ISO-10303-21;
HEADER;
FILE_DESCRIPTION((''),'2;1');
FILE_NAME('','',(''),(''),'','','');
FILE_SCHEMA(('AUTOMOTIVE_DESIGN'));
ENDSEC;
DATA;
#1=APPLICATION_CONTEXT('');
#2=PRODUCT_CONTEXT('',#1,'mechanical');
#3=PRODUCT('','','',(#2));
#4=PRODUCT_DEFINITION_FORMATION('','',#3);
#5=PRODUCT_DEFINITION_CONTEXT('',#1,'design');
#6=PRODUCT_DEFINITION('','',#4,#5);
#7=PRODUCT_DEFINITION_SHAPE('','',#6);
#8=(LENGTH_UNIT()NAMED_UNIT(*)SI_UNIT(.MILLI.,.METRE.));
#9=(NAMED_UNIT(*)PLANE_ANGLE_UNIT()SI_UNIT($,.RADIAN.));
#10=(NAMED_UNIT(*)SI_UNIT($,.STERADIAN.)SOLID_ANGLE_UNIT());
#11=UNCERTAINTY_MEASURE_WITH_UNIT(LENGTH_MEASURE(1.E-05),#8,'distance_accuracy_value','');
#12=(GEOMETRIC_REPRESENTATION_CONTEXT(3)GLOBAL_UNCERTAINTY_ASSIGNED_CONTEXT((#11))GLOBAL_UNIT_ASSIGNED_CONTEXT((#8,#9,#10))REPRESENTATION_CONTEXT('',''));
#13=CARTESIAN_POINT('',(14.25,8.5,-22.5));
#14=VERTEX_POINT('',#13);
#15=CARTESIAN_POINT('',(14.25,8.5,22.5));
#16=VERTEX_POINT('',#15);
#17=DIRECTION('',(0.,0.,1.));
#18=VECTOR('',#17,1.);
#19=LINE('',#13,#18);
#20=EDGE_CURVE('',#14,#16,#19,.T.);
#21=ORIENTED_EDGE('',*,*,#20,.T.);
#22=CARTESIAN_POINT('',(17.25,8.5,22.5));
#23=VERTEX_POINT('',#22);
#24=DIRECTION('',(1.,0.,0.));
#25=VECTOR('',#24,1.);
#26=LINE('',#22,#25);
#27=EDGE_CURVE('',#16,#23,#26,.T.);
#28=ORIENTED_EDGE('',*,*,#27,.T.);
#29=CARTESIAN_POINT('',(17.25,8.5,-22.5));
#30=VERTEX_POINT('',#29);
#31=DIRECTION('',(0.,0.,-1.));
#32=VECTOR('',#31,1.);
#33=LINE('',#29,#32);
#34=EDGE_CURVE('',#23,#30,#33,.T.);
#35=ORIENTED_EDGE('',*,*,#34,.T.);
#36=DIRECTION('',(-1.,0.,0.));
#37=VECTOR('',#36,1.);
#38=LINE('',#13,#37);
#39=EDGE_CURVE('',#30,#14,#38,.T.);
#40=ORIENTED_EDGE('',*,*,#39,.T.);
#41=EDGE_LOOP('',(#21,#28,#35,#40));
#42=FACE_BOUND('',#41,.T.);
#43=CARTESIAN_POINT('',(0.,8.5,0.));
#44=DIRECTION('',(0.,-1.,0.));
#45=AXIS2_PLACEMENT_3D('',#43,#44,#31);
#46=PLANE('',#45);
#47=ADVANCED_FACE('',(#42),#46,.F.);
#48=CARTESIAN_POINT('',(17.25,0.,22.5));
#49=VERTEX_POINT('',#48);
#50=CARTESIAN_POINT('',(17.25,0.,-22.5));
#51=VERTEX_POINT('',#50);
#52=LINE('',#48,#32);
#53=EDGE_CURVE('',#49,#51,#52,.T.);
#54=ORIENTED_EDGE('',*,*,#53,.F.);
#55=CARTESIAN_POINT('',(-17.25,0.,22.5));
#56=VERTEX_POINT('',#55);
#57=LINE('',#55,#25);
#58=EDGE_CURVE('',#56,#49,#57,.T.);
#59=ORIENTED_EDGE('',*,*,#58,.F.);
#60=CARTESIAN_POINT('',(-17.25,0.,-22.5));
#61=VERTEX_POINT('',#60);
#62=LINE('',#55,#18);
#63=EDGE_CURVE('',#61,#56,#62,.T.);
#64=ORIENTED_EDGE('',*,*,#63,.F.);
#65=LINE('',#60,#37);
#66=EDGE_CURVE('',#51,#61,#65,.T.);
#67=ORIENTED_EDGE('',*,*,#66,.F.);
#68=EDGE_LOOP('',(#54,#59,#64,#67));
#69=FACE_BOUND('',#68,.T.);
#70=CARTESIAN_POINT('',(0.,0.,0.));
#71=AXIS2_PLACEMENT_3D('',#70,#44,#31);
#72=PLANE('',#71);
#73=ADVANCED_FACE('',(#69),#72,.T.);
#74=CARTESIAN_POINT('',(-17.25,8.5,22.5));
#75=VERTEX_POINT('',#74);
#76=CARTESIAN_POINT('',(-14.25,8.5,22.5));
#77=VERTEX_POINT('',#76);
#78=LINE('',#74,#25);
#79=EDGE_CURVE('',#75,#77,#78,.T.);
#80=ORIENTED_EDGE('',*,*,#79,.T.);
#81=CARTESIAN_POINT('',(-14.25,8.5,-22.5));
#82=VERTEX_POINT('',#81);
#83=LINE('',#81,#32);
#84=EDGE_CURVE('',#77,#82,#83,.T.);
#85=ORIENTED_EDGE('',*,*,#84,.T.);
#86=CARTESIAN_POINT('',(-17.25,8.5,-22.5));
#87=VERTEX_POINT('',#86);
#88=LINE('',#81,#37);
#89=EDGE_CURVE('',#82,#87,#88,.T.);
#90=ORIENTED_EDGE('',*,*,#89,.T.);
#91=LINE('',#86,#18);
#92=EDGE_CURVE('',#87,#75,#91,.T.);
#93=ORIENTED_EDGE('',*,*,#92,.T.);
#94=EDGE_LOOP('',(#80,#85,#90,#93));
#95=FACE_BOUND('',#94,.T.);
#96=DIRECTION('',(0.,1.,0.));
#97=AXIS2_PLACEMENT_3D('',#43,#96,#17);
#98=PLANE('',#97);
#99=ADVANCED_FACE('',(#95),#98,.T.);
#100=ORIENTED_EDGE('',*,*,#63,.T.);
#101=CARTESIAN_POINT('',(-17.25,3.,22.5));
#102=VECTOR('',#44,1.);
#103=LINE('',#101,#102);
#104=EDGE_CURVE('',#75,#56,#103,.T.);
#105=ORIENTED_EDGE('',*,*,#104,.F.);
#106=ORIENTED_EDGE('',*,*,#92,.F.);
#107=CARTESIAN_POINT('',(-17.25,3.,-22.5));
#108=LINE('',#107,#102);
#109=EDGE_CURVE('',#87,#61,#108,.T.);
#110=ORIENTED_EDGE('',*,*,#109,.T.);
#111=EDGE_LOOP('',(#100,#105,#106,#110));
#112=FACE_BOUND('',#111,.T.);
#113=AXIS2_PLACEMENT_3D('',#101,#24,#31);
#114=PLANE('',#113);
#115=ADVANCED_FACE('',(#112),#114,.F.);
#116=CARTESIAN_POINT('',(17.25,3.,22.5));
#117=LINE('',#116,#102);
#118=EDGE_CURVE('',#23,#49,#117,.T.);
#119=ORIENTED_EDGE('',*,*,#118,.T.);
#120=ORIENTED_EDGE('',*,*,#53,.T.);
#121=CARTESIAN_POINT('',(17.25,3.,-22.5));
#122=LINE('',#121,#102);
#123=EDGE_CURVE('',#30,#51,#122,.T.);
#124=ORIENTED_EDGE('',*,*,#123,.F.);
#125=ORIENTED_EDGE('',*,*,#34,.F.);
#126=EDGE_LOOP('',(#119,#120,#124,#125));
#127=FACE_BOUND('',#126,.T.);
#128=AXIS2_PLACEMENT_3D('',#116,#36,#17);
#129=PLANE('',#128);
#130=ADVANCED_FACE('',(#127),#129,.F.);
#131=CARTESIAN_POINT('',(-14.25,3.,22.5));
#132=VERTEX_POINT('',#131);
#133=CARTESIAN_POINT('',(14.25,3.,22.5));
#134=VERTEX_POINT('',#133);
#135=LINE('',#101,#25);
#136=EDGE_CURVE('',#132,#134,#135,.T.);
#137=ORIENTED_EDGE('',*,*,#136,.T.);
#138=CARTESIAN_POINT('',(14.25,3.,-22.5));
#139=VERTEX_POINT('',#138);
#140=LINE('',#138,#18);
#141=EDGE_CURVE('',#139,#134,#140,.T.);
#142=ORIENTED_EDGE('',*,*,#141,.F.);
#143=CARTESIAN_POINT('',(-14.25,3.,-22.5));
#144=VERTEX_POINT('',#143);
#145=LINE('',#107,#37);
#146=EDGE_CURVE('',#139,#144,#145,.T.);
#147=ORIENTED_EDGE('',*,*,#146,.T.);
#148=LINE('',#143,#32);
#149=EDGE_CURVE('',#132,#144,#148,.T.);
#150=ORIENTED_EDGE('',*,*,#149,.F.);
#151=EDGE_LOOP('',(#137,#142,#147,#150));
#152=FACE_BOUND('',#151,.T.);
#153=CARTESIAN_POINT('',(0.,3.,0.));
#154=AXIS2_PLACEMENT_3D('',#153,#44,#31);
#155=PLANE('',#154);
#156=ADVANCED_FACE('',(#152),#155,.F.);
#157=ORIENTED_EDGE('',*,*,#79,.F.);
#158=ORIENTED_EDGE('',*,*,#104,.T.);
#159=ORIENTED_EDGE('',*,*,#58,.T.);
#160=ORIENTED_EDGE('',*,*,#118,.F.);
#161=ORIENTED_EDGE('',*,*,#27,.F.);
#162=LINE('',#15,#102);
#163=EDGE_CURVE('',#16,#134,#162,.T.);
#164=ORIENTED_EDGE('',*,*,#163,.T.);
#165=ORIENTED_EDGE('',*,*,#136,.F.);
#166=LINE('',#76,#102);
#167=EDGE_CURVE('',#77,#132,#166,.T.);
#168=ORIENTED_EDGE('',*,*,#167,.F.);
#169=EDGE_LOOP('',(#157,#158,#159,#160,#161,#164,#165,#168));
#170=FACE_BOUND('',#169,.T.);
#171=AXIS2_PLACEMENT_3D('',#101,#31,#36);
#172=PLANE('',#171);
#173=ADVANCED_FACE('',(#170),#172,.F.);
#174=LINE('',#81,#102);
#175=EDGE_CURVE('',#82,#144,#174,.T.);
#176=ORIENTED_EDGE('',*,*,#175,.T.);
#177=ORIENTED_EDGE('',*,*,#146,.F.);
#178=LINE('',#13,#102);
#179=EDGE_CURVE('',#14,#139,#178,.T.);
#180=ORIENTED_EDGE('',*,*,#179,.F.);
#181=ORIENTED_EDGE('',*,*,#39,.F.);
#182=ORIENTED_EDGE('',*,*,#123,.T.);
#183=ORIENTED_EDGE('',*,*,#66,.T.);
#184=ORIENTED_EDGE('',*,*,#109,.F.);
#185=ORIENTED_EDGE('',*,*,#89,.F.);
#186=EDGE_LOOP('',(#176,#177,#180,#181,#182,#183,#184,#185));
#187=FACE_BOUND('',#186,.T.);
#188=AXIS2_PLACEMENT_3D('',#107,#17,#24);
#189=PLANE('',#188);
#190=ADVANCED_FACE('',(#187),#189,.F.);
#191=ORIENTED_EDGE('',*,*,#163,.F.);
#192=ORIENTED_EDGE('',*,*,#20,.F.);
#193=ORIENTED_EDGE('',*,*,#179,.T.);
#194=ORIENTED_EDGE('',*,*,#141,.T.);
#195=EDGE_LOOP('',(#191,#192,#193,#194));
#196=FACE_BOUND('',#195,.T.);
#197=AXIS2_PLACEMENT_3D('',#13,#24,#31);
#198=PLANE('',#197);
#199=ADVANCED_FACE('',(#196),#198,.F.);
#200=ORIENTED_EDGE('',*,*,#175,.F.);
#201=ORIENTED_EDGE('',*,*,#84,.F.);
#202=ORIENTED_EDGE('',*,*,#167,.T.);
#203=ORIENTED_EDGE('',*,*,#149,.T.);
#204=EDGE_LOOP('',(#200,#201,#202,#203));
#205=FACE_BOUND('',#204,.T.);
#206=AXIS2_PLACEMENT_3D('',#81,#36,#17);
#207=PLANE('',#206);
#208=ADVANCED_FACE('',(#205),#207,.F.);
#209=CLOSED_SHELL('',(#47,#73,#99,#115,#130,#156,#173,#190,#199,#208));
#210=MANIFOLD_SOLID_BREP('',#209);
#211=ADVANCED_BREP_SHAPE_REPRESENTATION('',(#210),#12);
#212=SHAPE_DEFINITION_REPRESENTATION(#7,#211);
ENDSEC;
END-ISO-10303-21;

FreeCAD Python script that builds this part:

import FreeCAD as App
import Part
import Sketcher
from FreeCAD import Vector

doc = App.newDocument("Part")
body = doc.addObject("PartDesign::Body", "Body")

sketch1 = body.newObject("Sketcher::SketchObject", "Sketch")
sketch1.AttachmentSupport = (doc.getObject("XZ_Plane"), [""])
sketch1.MapMode = "FlatFace"
sketch1.addGeometry([
    Part.LineSegment(Vector(-17, -22, 0), Vector(-17, 22, 0)),
    Part.LineSegment(Vector(-17, 22, 0), Vector(17, 22, 0)),
    Part.LineSegment(Vector(17, 22, 0), Vector(17, -22, 0)),
    Part.LineSegment(Vector(17, -22, 0), Vector(-17, -22, 0)),
], False)
sketch1.addConstraint([
    Sketcher.Constraint("Coincident", 0, 2, 1, 1),
    Sketcher.Constraint("Coincident", 1, 2, 2, 1),
    Sketcher.Constraint("Coincident", 2, 2, 3, 1),
    Sketcher.Constraint("Coincident", 3, 2, 0, 1),
    Sketcher.Constraint("Vertical", 0),
    Sketcher.Constraint("Horizontal", 1),
    Sketcher.Constraint("Vertical", 2),
    Sketcher.Constraint("Horizontal", 3),
    Sketcher.Constraint("Symmetric", 0, 2, 2, 2, -1, 1),
    Sketcher.Constraint("DistanceY", 0, 1, 0, 2, 45.0),
    Sketcher.Constraint("DistanceX", 1, 1, 1, 2, 34.5),
])
pad1 = body.newObject("PartDesign::Pad", "Pad")
pad1.Profile = sketch1
pad1.Length = 3
pad1.Reversed = True

sketch2 = body.newObject("Sketcher::SketchObject", "Sketch001")
sketch2.AttachmentSupport = (doc.getObject("XZ_Plane"), [""])
sketch2.MapMode = "FlatFace"
sketch2.AttachmentOffset = App.Placement(Vector(0, 0, -3), App.Rotation())
sketch2.addGeometry([
    Part.LineSegment(Vector(-17.2, -22.5, 0), Vector(-17.2, 22.5, 0)),
    Part.LineSegment(Vector(-17.2, 22.5, 0), Vector(-14.2, 22.5, 0)),
    Part.LineSegment(Vector(-14.2, 22.5, 0), Vector(-14.2, -22.5, 0)),
    Part.LineSegment(Vector(-14.2, -22.5, 0), Vector(-17.2, -22.5, 0)),
    Part.LineSegment(Vector(14.2, -22.5, 0), Vector(14.2, 22.5, 0)),
    Part.LineSegment(Vector(14.2, 22.5, 0), Vector(17.2, 22.5, 0)),
    Part.LineSegment(Vector(17.2, 22.5, 0), Vector(17.2, -22.5, 0)),
    Part.LineSegment(Vector(17.2, -22.5, 0), Vector(14.2, -22.5, 0)),
], False)
sketch2.addConstraint([
    Sketcher.Constraint("Coincident", 0, 2, 1, 1),
    Sketcher.Constraint("Coincident", 1, 2, 2, 1),
    Sketcher.Constraint("Coincident", 2, 2, 3, 1),
    Sketcher.Constraint("Coincident", 3, 2, 0, 1),
    Sketcher.Constraint("Coincident", 4, 2, 5, 1),
    Sketcher.Constraint("Coincident", 5, 2, 6, 1),
    Sketcher.Constraint("Coincident", 6, 2, 7, 1),
    Sketcher.Constraint("Coincident", 7, 2, 4, 1),
    Sketcher.Constraint("Vertical", 0),
    Sketcher.Constraint("Horizontal", 1),
    Sketcher.Constraint("Vertical", 2),
    Sketcher.Constraint("Horizontal", 3),
    Sketcher.Constraint("Vertical", 4),
    Sketcher.Constraint("Horizontal", 5),
    Sketcher.Constraint("Vertical", 6),
    Sketcher.Constraint("Horizontal", 7),
    Sketcher.Constraint("Symmetric", 2, 2, 4, 2, -1, 1),
    Sketcher.Constraint("Symmetric", 0, 2, 6, 2, -1, 1),
    Sketcher.Constraint("Horizontal", 1, 2, 4, 2),
    Sketcher.Constraint("DistanceX", 1, 1, 1, 2, 3.0),
    Sketcher.Constraint("DistanceY", 0, 1, 0, 2, 45.0),
    Sketcher.Constraint("DistanceX", 1, 2, 4, 2, 28.5),
])
pad2 = body.newObject("PartDesign::Pad", "Pad001")
pad2.Profile = sketch2
pad2.Length = 5.5
pad2.Reversed = True

doc.recompute()
